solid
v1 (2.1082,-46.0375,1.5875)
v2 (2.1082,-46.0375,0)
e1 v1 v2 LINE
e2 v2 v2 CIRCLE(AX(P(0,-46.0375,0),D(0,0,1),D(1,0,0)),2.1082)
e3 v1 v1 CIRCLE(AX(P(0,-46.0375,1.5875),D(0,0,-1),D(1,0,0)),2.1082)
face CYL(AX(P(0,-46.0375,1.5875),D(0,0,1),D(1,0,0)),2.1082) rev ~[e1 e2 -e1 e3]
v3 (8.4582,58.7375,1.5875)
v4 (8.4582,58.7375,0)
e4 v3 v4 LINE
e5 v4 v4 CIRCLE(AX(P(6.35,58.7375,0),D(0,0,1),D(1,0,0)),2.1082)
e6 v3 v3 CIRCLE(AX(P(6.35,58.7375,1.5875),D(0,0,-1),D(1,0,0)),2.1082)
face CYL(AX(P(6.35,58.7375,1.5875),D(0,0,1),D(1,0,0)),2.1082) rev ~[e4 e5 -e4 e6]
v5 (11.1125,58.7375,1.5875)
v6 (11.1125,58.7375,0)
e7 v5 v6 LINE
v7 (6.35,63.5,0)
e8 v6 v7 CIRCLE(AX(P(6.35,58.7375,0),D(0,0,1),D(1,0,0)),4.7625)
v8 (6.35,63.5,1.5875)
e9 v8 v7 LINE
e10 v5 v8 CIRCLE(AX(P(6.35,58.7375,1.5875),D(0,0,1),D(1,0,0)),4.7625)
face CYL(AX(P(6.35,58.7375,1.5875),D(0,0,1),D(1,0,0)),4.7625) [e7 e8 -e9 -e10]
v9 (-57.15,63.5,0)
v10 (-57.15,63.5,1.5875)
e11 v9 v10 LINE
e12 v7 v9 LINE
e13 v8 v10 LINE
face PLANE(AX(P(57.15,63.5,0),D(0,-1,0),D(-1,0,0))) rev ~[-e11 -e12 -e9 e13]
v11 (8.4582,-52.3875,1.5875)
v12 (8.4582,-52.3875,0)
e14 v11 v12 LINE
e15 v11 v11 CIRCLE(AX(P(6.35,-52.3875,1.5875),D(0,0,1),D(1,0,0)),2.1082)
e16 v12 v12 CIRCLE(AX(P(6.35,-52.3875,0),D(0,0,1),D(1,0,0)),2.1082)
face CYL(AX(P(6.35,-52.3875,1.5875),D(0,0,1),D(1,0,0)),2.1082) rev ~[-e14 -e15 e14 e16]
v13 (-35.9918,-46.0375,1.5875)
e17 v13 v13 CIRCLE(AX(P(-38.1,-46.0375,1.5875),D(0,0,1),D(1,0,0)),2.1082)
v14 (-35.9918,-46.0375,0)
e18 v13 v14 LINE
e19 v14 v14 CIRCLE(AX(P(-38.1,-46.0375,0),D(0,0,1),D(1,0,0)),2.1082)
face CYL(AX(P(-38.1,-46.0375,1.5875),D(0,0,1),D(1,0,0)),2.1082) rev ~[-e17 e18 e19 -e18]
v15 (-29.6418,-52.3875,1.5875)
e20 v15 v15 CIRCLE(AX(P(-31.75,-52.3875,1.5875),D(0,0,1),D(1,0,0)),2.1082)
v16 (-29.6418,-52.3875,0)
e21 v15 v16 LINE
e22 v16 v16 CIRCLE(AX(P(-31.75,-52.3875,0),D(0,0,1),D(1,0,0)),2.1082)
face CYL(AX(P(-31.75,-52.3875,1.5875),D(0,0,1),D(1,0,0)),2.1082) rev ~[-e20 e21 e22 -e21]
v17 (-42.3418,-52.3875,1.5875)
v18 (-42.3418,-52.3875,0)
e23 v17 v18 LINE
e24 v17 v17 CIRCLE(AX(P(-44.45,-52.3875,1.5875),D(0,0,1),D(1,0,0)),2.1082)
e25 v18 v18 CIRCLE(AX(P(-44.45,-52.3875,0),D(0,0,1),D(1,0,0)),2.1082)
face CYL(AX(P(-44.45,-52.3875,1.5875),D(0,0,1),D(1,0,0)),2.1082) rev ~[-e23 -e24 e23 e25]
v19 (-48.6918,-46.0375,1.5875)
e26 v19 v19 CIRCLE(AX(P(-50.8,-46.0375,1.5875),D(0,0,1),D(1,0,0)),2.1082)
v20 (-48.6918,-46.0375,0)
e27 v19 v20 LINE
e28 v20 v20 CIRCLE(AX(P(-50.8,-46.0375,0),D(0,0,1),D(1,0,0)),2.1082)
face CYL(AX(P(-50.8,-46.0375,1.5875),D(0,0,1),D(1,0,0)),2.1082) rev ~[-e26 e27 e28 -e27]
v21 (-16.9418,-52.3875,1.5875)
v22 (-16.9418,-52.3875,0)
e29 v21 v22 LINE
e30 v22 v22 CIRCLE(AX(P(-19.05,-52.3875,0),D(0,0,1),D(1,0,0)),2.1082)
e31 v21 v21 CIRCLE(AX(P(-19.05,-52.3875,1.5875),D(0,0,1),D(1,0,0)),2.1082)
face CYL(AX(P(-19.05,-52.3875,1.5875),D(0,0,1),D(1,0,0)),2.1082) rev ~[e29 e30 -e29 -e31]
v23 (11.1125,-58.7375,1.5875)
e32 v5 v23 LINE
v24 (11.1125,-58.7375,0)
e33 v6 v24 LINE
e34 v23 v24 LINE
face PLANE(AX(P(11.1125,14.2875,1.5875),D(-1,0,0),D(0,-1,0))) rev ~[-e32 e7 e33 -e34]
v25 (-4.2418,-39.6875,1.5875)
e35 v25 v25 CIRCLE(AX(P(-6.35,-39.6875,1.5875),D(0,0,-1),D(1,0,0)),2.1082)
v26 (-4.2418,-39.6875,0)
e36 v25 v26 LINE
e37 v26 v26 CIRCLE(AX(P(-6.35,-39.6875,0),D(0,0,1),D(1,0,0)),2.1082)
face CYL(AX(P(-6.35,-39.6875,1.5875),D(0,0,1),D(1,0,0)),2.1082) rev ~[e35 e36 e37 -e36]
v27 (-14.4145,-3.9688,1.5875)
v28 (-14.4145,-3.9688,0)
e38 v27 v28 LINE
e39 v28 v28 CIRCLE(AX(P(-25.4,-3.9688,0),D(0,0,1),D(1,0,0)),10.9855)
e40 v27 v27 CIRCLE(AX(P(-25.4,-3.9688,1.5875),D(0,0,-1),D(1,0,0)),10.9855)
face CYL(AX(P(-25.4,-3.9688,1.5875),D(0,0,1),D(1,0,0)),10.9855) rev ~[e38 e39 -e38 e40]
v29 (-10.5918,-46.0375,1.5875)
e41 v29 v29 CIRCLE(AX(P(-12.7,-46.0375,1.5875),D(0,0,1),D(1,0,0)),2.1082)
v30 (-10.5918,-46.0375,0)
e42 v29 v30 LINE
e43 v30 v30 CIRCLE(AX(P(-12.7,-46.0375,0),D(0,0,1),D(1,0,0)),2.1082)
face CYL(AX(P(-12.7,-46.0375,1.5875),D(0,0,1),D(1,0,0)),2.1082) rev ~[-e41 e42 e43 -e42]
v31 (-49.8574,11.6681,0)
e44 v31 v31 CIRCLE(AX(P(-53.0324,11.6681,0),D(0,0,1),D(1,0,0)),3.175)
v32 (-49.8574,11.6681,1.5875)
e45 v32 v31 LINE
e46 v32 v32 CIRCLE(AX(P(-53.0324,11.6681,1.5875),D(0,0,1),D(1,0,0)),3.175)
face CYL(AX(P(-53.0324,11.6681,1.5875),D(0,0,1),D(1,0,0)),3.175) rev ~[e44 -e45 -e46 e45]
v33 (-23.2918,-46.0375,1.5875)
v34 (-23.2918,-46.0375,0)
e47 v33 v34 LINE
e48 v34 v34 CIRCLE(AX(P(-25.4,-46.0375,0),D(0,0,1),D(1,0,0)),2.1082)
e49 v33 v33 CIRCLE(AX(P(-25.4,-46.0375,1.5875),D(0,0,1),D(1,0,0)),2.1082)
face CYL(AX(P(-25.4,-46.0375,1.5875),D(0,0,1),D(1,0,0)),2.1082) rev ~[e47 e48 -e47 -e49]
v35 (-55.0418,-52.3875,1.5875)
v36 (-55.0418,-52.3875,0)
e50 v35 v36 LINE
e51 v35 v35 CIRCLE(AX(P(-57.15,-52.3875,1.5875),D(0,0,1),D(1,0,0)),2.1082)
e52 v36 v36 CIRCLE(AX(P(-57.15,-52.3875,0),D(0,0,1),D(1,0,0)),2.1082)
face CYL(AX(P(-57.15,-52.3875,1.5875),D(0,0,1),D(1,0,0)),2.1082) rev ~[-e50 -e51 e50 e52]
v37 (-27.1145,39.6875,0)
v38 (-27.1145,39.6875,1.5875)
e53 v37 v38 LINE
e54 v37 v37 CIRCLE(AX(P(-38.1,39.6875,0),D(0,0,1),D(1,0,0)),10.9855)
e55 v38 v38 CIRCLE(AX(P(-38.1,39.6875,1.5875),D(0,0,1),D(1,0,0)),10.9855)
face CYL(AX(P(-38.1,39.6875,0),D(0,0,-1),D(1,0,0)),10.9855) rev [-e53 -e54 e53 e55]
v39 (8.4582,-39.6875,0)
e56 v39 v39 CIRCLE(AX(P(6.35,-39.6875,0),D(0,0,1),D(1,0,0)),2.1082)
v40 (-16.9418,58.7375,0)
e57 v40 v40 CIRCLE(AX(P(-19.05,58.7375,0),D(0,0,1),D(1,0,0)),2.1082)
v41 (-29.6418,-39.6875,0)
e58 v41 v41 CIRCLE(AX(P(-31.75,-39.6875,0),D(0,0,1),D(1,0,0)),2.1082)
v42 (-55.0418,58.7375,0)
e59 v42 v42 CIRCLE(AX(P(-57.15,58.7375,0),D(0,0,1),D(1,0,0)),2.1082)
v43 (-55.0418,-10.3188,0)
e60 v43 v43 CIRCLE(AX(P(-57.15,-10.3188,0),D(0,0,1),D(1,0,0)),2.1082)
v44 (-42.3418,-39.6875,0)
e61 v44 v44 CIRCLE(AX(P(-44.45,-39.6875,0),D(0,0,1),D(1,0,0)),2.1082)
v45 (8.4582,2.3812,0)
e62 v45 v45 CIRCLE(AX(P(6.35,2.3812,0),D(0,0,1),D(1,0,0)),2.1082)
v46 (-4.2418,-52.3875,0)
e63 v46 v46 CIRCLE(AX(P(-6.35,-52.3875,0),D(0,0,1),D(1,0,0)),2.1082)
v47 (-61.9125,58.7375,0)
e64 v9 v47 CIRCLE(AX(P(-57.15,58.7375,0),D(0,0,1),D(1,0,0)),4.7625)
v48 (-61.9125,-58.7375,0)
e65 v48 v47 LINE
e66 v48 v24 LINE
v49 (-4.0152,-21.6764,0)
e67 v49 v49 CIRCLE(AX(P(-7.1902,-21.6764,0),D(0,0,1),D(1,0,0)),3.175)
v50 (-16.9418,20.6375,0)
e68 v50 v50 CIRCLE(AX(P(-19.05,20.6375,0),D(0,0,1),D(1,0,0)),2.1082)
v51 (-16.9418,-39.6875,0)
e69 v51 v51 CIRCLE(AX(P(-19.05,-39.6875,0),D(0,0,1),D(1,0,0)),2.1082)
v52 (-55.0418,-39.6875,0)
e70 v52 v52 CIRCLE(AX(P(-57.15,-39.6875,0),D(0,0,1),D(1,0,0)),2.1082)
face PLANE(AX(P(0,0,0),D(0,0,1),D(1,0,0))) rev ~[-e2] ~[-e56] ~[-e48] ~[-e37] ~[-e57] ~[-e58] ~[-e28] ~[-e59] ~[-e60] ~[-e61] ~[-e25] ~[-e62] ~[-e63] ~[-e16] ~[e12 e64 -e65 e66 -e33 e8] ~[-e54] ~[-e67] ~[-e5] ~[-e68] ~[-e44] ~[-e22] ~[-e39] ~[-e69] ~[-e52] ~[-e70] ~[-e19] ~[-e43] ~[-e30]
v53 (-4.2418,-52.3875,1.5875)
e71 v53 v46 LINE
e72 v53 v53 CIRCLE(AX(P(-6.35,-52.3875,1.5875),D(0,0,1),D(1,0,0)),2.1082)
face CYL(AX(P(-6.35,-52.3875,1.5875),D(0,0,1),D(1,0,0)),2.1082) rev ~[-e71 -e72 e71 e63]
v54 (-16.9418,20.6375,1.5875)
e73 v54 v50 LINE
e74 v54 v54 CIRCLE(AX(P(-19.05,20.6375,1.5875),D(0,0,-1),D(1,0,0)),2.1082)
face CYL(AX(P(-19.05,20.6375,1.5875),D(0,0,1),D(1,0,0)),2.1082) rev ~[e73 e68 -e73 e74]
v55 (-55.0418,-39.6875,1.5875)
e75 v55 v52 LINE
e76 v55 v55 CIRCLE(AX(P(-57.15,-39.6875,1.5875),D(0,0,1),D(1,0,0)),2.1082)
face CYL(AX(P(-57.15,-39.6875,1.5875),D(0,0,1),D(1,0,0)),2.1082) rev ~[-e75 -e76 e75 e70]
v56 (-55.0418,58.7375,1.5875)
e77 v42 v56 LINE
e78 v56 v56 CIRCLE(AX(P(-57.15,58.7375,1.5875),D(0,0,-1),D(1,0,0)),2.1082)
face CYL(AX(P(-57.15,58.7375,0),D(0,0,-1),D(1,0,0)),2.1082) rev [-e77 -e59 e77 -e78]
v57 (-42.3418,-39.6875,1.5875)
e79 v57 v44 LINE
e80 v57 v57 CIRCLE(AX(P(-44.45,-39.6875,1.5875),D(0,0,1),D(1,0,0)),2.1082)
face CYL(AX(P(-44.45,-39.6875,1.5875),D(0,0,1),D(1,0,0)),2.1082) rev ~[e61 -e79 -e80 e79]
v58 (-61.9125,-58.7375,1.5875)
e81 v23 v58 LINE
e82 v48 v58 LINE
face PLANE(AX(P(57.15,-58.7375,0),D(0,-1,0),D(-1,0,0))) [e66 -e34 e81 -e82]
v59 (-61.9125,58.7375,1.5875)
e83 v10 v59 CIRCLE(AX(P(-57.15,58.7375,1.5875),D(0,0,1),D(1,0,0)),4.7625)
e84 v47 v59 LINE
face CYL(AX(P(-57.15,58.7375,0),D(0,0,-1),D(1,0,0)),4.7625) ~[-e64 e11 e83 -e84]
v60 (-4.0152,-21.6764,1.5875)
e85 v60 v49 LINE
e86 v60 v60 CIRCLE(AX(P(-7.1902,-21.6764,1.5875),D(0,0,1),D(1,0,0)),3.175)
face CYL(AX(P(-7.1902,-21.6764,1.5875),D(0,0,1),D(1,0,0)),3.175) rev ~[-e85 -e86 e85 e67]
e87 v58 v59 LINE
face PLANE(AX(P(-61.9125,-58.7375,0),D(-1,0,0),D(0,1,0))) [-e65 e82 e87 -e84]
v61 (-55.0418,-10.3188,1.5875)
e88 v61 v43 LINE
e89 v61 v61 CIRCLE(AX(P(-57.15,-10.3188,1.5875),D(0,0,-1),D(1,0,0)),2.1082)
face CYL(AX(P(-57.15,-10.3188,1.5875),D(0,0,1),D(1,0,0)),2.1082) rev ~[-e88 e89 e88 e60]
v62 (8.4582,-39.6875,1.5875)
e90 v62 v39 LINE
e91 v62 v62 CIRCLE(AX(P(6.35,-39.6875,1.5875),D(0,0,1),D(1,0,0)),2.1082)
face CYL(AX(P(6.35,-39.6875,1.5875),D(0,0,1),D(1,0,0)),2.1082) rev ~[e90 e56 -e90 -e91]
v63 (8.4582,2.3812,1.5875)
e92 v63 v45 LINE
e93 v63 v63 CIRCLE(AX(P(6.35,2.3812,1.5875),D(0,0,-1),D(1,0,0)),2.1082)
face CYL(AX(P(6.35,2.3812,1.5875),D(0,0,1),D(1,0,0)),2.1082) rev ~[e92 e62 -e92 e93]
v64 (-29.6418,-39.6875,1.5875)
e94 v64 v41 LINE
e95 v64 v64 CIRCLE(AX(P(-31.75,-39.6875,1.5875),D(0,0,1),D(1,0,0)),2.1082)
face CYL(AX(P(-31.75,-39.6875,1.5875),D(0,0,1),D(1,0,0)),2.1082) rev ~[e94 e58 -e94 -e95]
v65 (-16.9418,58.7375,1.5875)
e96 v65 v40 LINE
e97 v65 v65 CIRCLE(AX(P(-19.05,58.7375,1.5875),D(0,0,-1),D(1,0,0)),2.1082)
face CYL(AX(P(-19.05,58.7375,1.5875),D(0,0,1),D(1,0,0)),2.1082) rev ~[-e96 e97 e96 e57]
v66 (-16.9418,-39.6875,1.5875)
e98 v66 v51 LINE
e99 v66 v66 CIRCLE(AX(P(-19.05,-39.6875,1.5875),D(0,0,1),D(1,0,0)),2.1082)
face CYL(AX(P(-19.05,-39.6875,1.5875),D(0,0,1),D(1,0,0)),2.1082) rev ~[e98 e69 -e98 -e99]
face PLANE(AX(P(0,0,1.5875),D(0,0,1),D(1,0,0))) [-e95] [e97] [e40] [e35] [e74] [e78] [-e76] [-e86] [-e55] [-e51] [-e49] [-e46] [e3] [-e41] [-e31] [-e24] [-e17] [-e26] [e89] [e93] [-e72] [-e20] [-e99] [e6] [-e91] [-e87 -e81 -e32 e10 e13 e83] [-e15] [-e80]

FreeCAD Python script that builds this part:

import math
import FreeCAD as App
import Part
import Sketcher

V = App.Vector
Q = App.Units.Quantity

doc = App.newDocument("Part")
params = doc.addObject("Spreadsheet::Sheet", "Params")
for row, (alias, value) in enumerate([
    ("sketch1_diameter", "0.166 in"),
    ("sketch1_diameter2", "0.865 in"),
    ("sketch1_width", "4.5 in"),
    ("sketch1_radius", "0.1875 in"),
    ("sketch1_height", "4.625 in"),
    ("pad1_length", "0.0625 in"),
    ("sketch2_diameter", "0.865 in"),
    ("sketch2_diameter2", "0.166 in"),
    ("pocket1_length", "0.0625 in"),
    ("sketch3_diameter", "0.25 in"),
    ("pocket2_length", "1 in"),
    ("sketch4_diameter", "0.166 in"),
    ("pocket3_length", "1 in"),
    ("sketch5_width", "2 in"),
    ("sketch5_diameter", "0.166 in"),
    ("sketch5_radius", "0.1875 in"),
    ("sketch5_height", "4.625 in"),
    ("pocket4_length", "1 in"),
    ("sketch6_diameter", "0.166 in"),
    ("pocket5_length", "1 in"),
    ("sketch7_diameter", "0.865 in"),
    ("pad2_length", "0.0625 in"),
    ("sketch8_diameter", "0.166 in"),
    ("pocket6_length", "0.0625 in"),
    ("sketch9_diameter", "0.166 in"),
    ("pocket7_length", "0.0625 in"),
    ("sketch10_diameter", "0.166 in"),
    ("pocket8_length", "0.0625 in"),
], start=1):
    params.set(f"A{row}", alias)
    params.set(f"B{row}", "=" + value)
    params.setAlias(f"B{row}", alias)

body = doc.addObject("PartDesign::Body", "Body")

sketch1 = body.newObject("Sketcher::SketchObject", "Sketch")
sketch1.AttachmentSupport = (doc.getObject("XY_Plane"), [""])
sketch1.MapMode = "FlatFace"
sketch1.addGeometry(Part.LineSegment(V(61.9125, -58.7375, 0), V(61.9125, 58.7375, 0)), False)
sketch1.addGeometry(Part.ArcOfCircle(Part.Circle(V(57.15, 58.7375, 0), V(0, 0, 1), 4.7625), math.radians(0), math.radians(90)), False)
sketch1.addGeometry(Part.LineSegment(V(57.15, 63.5, 0), V(-57.15, 63.5, 0)), False)
sketch1.addGeometry(Part.ArcOfCircle(Part.Circle(V(-57.15, 58.7375, 0), V(0, 0, 1), 4.7625), math.radians(90), math.radians(180)), False)
sketch1.addGeometry(Part.LineSegment(V(-61.9125, 58.7375, 0), V(-61.9125, -58.7375, 0)), False)
sketch1.addGeometry(Part.LineSegment(V(-61.9125, -58.7375, 0), V(61.9125, -58.7375, 0)), False)
sketch1.addGeometry(Part.Circle(V(57.15, 58.7375, 0), V(0, 0, 1), 2.1082), False)
sketch1.addGeometry(Part.Circle(V(-57.15, 58.7375, 0), V(0, 0, 1), 2.1082), False)
sketch1.addGeometry(Part.Circle(V(-38.1, 39.6875, 0), V(0, 0, 1), 10.9855), False)
sketch1.addConstraint(Sketcher.Constraint("Tangent", 0, 2, 1, 1))
sketch1.addConstraint(Sketcher.Constraint("Tangent", 1, 2, 2, 1))
sketch1.addConstraint(Sketcher.Constraint("Tangent", 2, 2, 3, 1))
sketch1.addConstraint(Sketcher.Constraint("Tangent", 3, 2, 4, 1))
sketch1.addConstraint(Sketcher.Constraint("Coincident", 4, 2, 5, 1))
sketch1.addConstraint(Sketcher.Constraint("Coincident", 5, 2, 0, 1))
sketch1.addConstraint(Sketcher.Constraint("Vertical", 0))
sketch1.addConstraint(Sketcher.Constraint("Horizontal", 2))
sketch1.addConstraint(Sketcher.Constraint("Vertical", 4))
sketch1.addConstraint(Sketcher.Constraint("Horizontal", 5))
sketch1.addConstraint(Sketcher.Constraint("Coincident", 6, 3, 1, 3))
sketch1.addConstraint(Sketcher.Constraint("Coincident", 7, 3, 3, 3))
sketch1.addConstraint(Sketcher.Constraint("Equal", 1, 3))
sketch1.addConstraint(Sketcher.Constraint("Equal", 6, 7))
sketch1.addConstraint(Sketcher.Constraint("Symmetric", 0, 2, 4, 2, -1, 1))
sketch1.addConstraint(Sketcher.Constraint("Diameter", 6, Q("0.166 in")))
sketch1.addConstraint(Sketcher.Constraint("Diameter", 8, Q("0.865 in")))
sketch1.addConstraint(Sketcher.Constraint("DistanceX", 2, 2, 2, 1, Q("4.5 in")))
sketch1.addConstraint(Sketcher.Constraint("Radius", 1, Q("0.1875 in")))
sketch1.addConstraint(Sketcher.Constraint("DistanceX", 8, 3, -1, 1, Q("1.5 in")))
sketch1.addConstraint(Sketcher.Constraint("DistanceY", 0, 1, 0, 2, Q("4.625 in")))
sketch1.addConstraint(Sketcher.Constraint("DistanceY", 8, 3, 3, 3, Q("0.75 in")))
sketch1.setExpression("Constraints[15]", "Params.sketch1_diameter")
sketch1.setExpression("Constraints[16]", "Params.sketch1_diameter2")
sketch1.setExpression("Constraints[17]", "Params.sketch1_width")
sketch1.setExpression("Constraints[18]", "Params.sketch1_radius")
sketch1.setExpression("Constraints[20]", "Params.sketch1_height")
pad1 = body.newObject("PartDesign::Pad", "Pad")
pad1.Profile = sketch1
pad1.setExpression("Length", "Params.pad1_length")

sketch2 = body.newObject("Sketcher::SketchObject", "Sketch001")
sketch2.AttachmentSupport = (doc.getObject("XY_Plane"), [""])
sketch2.MapMode = "FlatFace"
sketch2.AttachmentOffset = App.Placement(V(0, 0, 0.0625 * 25.4), App.Rotation())
sketch2.addGeometry(Part.Circle(V(-12.7, 39.6875, 0), V(0, 0, 1), 10.9855), False)
sketch2.addGeometry(Part.Circle(V(-25.4, -3.9688, 0), V(0, 0, 1), 10.9855), False)
sketch2.addGeometry(Part.Circle(V(38.1, 39.6875, 0), V(0, 0, 1), 10.9855), False)
sketch2.addGeometry(Part.Circle(V(0, -46.0375, 0), V(0, 0, 1), 2.1082), False)
sketch2.addConstraint(Sketcher.Constraint("Equal", 0, 1))
sketch2.addConstraint(Sketcher.Constraint("Equal", 1, 2))
sketch2.addConstraint(Sketcher.Constraint("PointOnObject", 3, 3, -2))
sketch2.addConstraint(Sketcher.Constraint("Horizontal", 0, 3, 2, 3))
sketch2.addConstraint(Sketcher.Constraint("Diameter", 0, Q("0.865 in")))
sketch2.addConstraint(Sketcher.Constraint("Diameter", 3, Q("0.166 in")))
sketch2.addConstraint(Sketcher.Constraint("DistanceX", 1, 3, -1, 1, Q("1 in")))
sketch2.addConstraint(Sketcher.Constraint("DistanceX", 0, 3, -1, 1, Q("0.5 in")))
sketch2.addConstraint(Sketcher.Constraint("DistanceX", -1, 1, 2, 3, Q("1.5 in")))
sketch2.addConstraint(Sketcher.Constraint("DistanceY", 1, 3, 0, 3, Q("1.718752 in")))
sketch2.addConstraint(Sketcher.Constraint("DistanceY", -1, 1, 0, 3, Q("1.5625 in")))
sketch2.addConstraint(Sketcher.Constraint("DistanceY", 3, 3, -1, 1, Q("1.8125 in")))
sketch2.setExpression("Constraints[4]", "Params.sketch2_diameter")
sketch2.setExpression("Constraints[5]", "Params.sketch2_diameter2")
pocket1 = body.newObject("PartDesign::Pocket", "Pocket")
pocket1.Profile = sketch2
pocket1.setExpression("Length", "Params.pocket1_length")

sketch3 = body.newObject("Sketcher::SketchObject", "Sketch002")
sketch3.AttachmentSupport = (doc.getObject("XY_Plane"), [""])
sketch3.MapMode = "FlatFace"
sketch3.AttachmentOffset = App.Placement(V(0, 0, 0.0625 * 25.4), App.Rotation())
sketch3.addGeometry(Part.Circle(V(-53.0324, 11.6681, 0), V(0, 0, 1), 3.175), False)
sketch3.addGeometry(Part.Circle(V(-7.1902, -21.6764, 0), V(0, 0, 1), 3.175), False)
sketch3.addConstraint(Sketcher.Constraint("Equal", 0, 1))
sketch3.addConstraint(Sketcher.Constraint("Diameter", 0, Q("0.25 in")))
sketch3.addConstraint(Sketcher.Constraint("DistanceX", 0, 3, -1, 1, Q("2.0879 in")))
sketch3.addConstraint(Sketcher.Constraint("DistanceY", 1, 3, -1, 1, Q("0.8534 in")))
sketch3.addConstraint(Sketcher.Constraint("DistanceX", 0, 3, 1, 3, Q("1.8048 in")))
sketch3.addConstraint(Sketcher.Constraint("DistanceY", -1, 1, 0, 3, Q("11.668 mm")))
sketch3.setExpression("Constraints[1]", "Params.sketch3_diameter")
pocket2 = body.newObject("PartDesign::Pocket", "Pocket001")
pocket2.Profile = sketch3
pocket2.setExpression("Length", "Params.pocket2_length")

sketch4 = body.newObject("Sketcher::SketchObject", "Sketch003")
sketch4.AttachmentSupport = (doc.getObject("XY_Plane"), [""])
sketch4.MapMode = "FlatFace"
sketch4.AttachmentOffset = App.Placement(V(0, 0, 0.0625 * 25.4), App.Rotation())
sketch4.addGeometry(Part.Circle(V(-6.35, -39.6875, 0), V(0, 0, 1), 2.1082), False)
sketch4.addGeometry(Part.Circle(V(6.35, -39.6875, 0), V(0, 0, 1), 2.1082), False)
sketch4.addGeometry(Part.Circle(V(19.05, -39.6875, 0), V(0, 0, 1), 2.1082), False)
sketch4.addGeometry(Part.Circle(V(31.75, -39.6875, 0), V(0, 0, 1), 2.1082), False)
sketch4.addGeometry(Part.Circle(V(44.45, -39.6875, 0), V(0, 0, 1), 2.1082), False)
sketch4.addGeometry(Part.Circle(V(57.15, -39.6875, 0), V(0, 0, 1), 2.1082), False)
sketch4.addGeometry(Part.Circle(V(-6.35, -52.3875, 0), V(0, 0, 1), 2.1082), False)
sketch4.addGeometry(Part.Circle(V(6.35, -52.3875, 0), V(0, 0, 1), 2.1082), False)
sketch4.addGeometry(Part.Circle(V(19.05, -52.3875, 0), V(0, 0, 1), 2.1082), False)
sketch4.addGeometry(Part.Circle(V(31.75, -52.3875, 0), V(0, 0, 1), 2.1082), False)
sketch4.addGeometry(Part.Circle(V(44.45, -52.3875, 0), V(0, 0, 1), 2.1082), False)
sketch4.addGeometry(Part.Circle(V(57.15, -52.3875, 0), V(0, 0, 1), 2.1082), False)
sketch4.addGeometry(Part.Circle(V(-19.05, -39.6875, 0), V(0, 0, 1), 2.1082), False)
sketch4.addGeometry(Part.Circle(V(-31.75, -39.6875, 0), V(0, 0, 1), 2.1082), False)
sketch4.addGeometry(Part.Circle(V(-44.45, -39.6875, 0), V(0, 0, 1), 2.1082), False)
sketch4.addGeometry(Part.Circle(V(-57.15, -39.6875, 0), V(0, 0, 1), 2.1082), False)
sketch4.addGeometry(Part.Circle(V(-19.05, -52.3875, 0), V(0, 0, 1), 2.1082), False)
sketch4.addGeometry(Part.Circle(V(-31.75, -52.3875, 0), V(0, 0, 1), 2.1082), False)
sketch4.addGeometry(Part.Circle(V(-44.45, -52.3875, 0), V(0, 0, 1), 2.1082), False)
sketch4.addGeometry(Part.Circle(V(-57.15, -52.3875, 0), V(0, 0, 1), 2.1082), False)
sketch4.addConstraint(Sketcher.Constraint("Equal", 0, 1))
sketch4.addConstraint(Sketcher.Constraint("Equal", 1, 2))
sketch4.addConstraint(Sketcher.Constraint("Equal", 2, 3))
sketch4.addConstraint(Sketcher.Constraint("Equal", 3, 4))
sketch4.addConstraint(Sketcher.Constraint("Equal", 4, 5))
sketch4.addConstraint(Sketcher.Constraint("Equal", 5, 6))
sketch4.addConstraint(Sketcher.Constraint("Equal", 6, 7))
sketch4.addConstraint(Sketcher.Constraint("Equal", 7, 8))
sketch4.addConstraint(Sketcher.Constraint("Equal", 8, 9))
sketch4.addConstraint(Sketcher.Constraint("Equal", 9, 10))
sketch4.addConstraint(Sketcher.Constraint("Equal", 10, 11))
sketch4.addConstraint(Sketcher.Constraint("Equal", 11, 12))
sketch4.addConstraint(Sketcher.Constraint("Equal", 12, 13))
sketch4.addConstraint(Sketcher.Constraint("Equal", 13, 14))
sketch4.addConstraint(Sketcher.Constraint("Equal", 14, 15))
sketch4.addConstraint(Sketcher.Constraint("Equal", 15, 16))
sketch4.addConstraint(Sketcher.Constraint("Equal", 16, 17))
sketch4.addConstraint(Sketcher.Constraint("Equal", 17, 18))
sketch4.addConstraint(Sketcher.Constraint("Equal", 18, 19))
sketch4.addConstraint(Sketcher.Constraint("Symmetric", 0, 3, 1, 3, -2))
sketch4.addConstraint(Sketcher.Constraint("Symmetric", 6, 3, 7, 3, -2))
sketch4.addConstraint(Sketcher.Constraint("Symmetric", 2, 3, 12, 3, -2))
sketch4.addConstraint(Sketcher.Constraint("Symmetric", 3, 3, 13, 3, -2))
sketch4.addConstraint(Sketcher.Constraint("Symmetric", 4, 3, 14, 3, -2))
sketch4.addConstraint(Sketcher.Constraint("Symmetric", 5, 3, 15, 3, -2))
sketch4.addConstraint(Sketcher.Constraint("Symmetric", 8, 3, 16, 3, -2))
sketch4.addConstraint(Sketcher.Constraint("Symmetric", 9, 3, 17, 3, -2))
sketch4.addConstraint(Sketcher.Constraint("Symmetric", 10, 3, 18, 3, -2))
sketch4.addConstraint(Sketcher.Constraint("Symmetric", 11, 3, 19, 3, -2))
sketch4.addConstraint(Sketcher.Constraint("Horizontal", 1, 3, 2, 3))
sketch4.addConstraint(Sketcher.Constraint("Horizontal", 2, 3, 3, 3))
sketch4.addConstraint(Sketcher.Constraint("Horizontal", 3, 3, 4, 3))
sketch4.addConstraint(Sketcher.Constraint("Horizontal", 4, 3, 5, 3))
sketch4.addConstraint(Sketcher.Constraint("Horizontal", 7, 3, 8, 3))
sketch4.addConstraint(Sketcher.Constraint("Horizontal", 8, 3, 9, 3))
sketch4.addConstraint(Sketcher.Constraint("Horizontal", 9, 3, 10, 3))
sketch4.addConstraint(Sketcher.Constraint("Horizontal", 10, 3, 11, 3))
sketch4.addConstraint(Sketcher.Constraint("Vertical", 0, 3, 6, 3))
sketch4.addConstraint(Sketcher.Constraint("Vertical", 2, 3, 8, 3))
sketch4.addConstraint(Sketcher.Constraint("Vertical", 3, 3, 9, 3))
sketch4.addConstraint(Sketcher.Constraint("Vertical", 4, 3, 10, 3))
sketch4.addConstraint(Sketcher.Constraint("Vertical", 5, 3, 11, 3))
sketch4.addConstraint(Sketcher.Constraint("Diameter", 0, Q("0.166 in")))
sketch4.addConstraint(Sketcher.Constraint("DistanceX", 0, 3, 1, 3, Q("0.5 in")))
sketch4.addConstraint(Sketcher.Constraint("DistanceX", 1, 3, 2, 3, Q("0.5 in")))
sketch4.addConstraint(Sketcher.Constraint("DistanceX", 2, 3, 3, 3, Q("0.5 in")))
sketch4.addConstraint(Sketcher.Constraint("DistanceX", 3, 3, 4, 3, Q("0.5 in")))
sketch4.addConstraint(Sketcher.Constraint("DistanceX", 4, 3, 5, 3, Q("0.5 in")))
sketch4.addConstraint(Sketcher.Constraint("DistanceY", 6, 3, 0, 3, Q("0.5 in")))
sketch4.addConstraint(Sketcher.Constraint("DistanceY", 0, 3, -1, 1, Q("1.5625 in")))
sketch4.setExpression("Constraints[42]", "Params.sketch4_diameter")
pocket3 = body.newObject("PartDesign::Pocket", "Pocket002")
pocket3.Profile = sketch4
pocket3.setExpression("Length", "Params.pocket3_length")

sketch5 = body.newObject("Sketcher::SketchObject", "Sketch004")
sketch5.AttachmentSupport = (doc.getObject("XY_Plane"), [""])
sketch5.MapMode = "FlatFace"
sketch5.AttachmentOffset = App.Placement(V(0, 0, 0.0625 * 25.4), App.Rotation())
sketch5.addGeometry(Part.LineSegment(V(61.9125, -58.7375, 0), V(61.9125, 58.7375, 0)), False)
sketch5.addGeometry(Part.ArcOfCircle(Part.Circle(V(57.15, 58.7375, 0), V(0, 0, 1), 4.7625), math.radians(0), math.radians(90)), False)
sketch5.addGeometry(Part.LineSegment(V(57.15, 63.5, 0), V(6.35, 63.5, 0)), False)
sketch5.addGeometry(Part.ArcOfCircle(Part.Circle(V(6.35, 58.7375, 0), V(0, 0, 1), 4.7625), math.radians(0), math.radians(90)), False)
sketch5.addGeometry(Part.LineSegment(V(11.1125, 58.7375, 0), V(11.1125, -58.7375, 0)), False)
sketch5.addGeometry(Part.LineSegment(V(11.1125, -58.7375, 0), V(61.9125, -58.7375, 0)), False)
sketch5.addGeometry(Part.Circle(V(6.35, 58.7375, 0), V(0, 0, 1), 2.1082), False)
sketch5.addConstraint(Sketcher.Constraint("Tangent", 0, 2, 1, 1))
sketch5.addConstraint(Sketcher.Constraint("Tangent", 1, 2, 2, 1))
sketch5.addConstraint(Sketcher.Constraint("Tangent", 2, 2, 3, 2))
sketch5.addConstraint(Sketcher.Constraint("Tangent", 3, 1, 4, 1))
sketch5.addConstraint(Sketcher.Constraint("Coincident", 4, 2, 5, 1))
sketch5.addConstraint(Sketcher.Constraint("Coincident", 5, 2, 0, 1))
sketch5.addConstraint(Sketcher.Constraint("Vertical", 0))
sketch5.addConstraint(Sketcher.Constraint("Horizontal", 2))
sketch5.addConstraint(Sketcher.Constraint("Vertical", 4))
sketch5.addConstraint(Sketcher.Constraint("Horizontal", 5))
sketch5.addConstraint(Sketcher.Constraint("Coincident", 6, 3, 3, 3))
sketch5.addConstraint(Sketcher.Constraint("Equal", 1, 3))
sketch5.addConstraint(Sketcher.Constraint("DistanceX", 2, 2, 2, 1, Q("2 in")))
sketch5.addConstraint(Sketcher.Constraint("Diameter", 6, Q("0.166 in")))
sketch5.addConstraint(Sketcher.Constraint("Radius", 1, Q("0.1875 in")))
sketch5.addConstraint(Sketcher.Constraint("DistanceX", -1, 1, 3, 3, Q("0.25 in")))
sketch5.addConstraint(Sketcher.Constraint("DistanceY", -1, 1, 1, 2, Q("2.5 in")))
sketch5.addConstraint(Sketcher.Constraint("DistanceY", 0, 1, 0, 2, Q("4.625 in")))
sketch5.setExpression("Constraints[12]", "Params.sketch5_width")
sketch5.setExpression("Constraints[13]", "Params.sketch5_diameter")
sketch5.setExpression("Constraints[14]", "Params.sketch5_radius")
sketch5.setExpression("Constraints[17]", "Params.sketch5_height")
pocket4 = body.newObject("PartDesign::Pocket", "Pocket003")
pocket4.Profile = sketch5
pocket4.setExpression("Length", "Params.pocket4_length")

sketch6 = body.newObject("Sketcher::SketchObject", "Sketch005")
sketch6.AttachmentSupport = (doc.getObject("XY_Plane"), [""])
sketch6.MapMode = "FlatFace"
sketch6.AttachmentOffset = App.Placement(V(0, 0, 0.0625 * 25.4), App.Rotation())
sketch6.addGeometry(Part.Circle(V(0, -46.0375, 0), V(0, 0, 1), 2.1082), False)
sketch6.addGeometry(Part.Circle(V(-12.7, -46.0375, 0), V(0, 0, 1), 2.1082), False)
sketch6.addGeometry(Part.Circle(V(-25.4, -46.0375, 0), V(0, 0, 1), 2.1082), False)
sketch6.addGeometry(Part.Circle(V(-38.1, -46.0375, 0), V(0, 0, 1), 2.1082), False)
sketch6.addGeometry(Part.Circle(V(-50.8, -46.0375, 0), V(0, 0, 1), 2.1082), False)
sketch6.addConstraint(Sketcher.Constraint("Equal", 0, 1))
sketch6.addConstraint(Sketcher.Constraint("Equal", 1, 2))
sketch6.addConstraint(Sketcher.Constraint("Equal", 2, 3))
sketch6.addConstraint(Sketcher.Constraint("Equal", 3, 4))
sketch6.addConstraint(Sketcher.Constraint("PointOnObject", 0, 3, -2))
sketch6.addConstraint(Sketcher.Constraint("Horizontal", 0, 3, 1, 3))
sketch6.addConstraint(Sketcher.Constraint("Horizontal", 1, 3, 2, 3))
sketch6.addConstraint(Sketcher.Constraint("Horizontal", 2, 3, 3, 3))
sketch6.addConstraint(Sketcher.Constraint("Horizontal", 3, 3, 4, 3))
sketch6.addConstraint(Sketcher.Constraint("DistanceX", 2, 3, -1, 1, Q("1 in")))
sketch6.addConstraint(Sketcher.Constraint("DistanceX", 3, 3, 1, 3, Q("1 in")))
sketch6.addConstraint(Sketcher.Constraint("DistanceX", 4, 3, 2, 3, Q("1 in")))
sketch6.addConstraint(Sketcher.Constraint("DistanceX", 1, 3, -1, 1, Q("0.5 in")))
sketch6.addConstraint(Sketcher.Constraint("Diameter", 0, Q("0.166 in")))
sketch6.addConstraint(Sketcher.Constraint("DistanceY", 0, 3, -1, 1, Q("1.8125 in")))
sketch6.setExpression("Constraints[13]", "Params.sketch6_diameter")
pocket5 = body.newObject("PartDesign::Pocket", "Pocket004")
pocket5.Profile = sketch6
pocket5.setExpression("Length", "Params.pocket5_length")

sketch7 = body.newObject("Sketcher::SketchObject", "Sketch006")
sketch7.AttachmentSupport = (doc.getObject("XY_Plane"), [""])
sketch7.MapMode = "FlatFace"
sketch7.AttachmentOffset = App.Placement(V(0, 0, 0.0625 * 25.4), App.Rotation())
sketch7.addGeometry(Part.Circle(V(-12.7, 39.6875, 0), V(0, 0, 1), 10.9855), False)
sketch7.addConstraint(Sketcher.Constraint("Diameter", 0, Q("0.865 in")))
sketch7.addConstraint(Sketcher.Constraint("DistanceX", 0, 3, -1, 1, Q("0.5 in")))
sketch7.addConstraint(Sketcher.Constraint("DistanceY", -1, 1, 0, 3, Q("1.5625 in")))
sketch7.setExpression("Constraints[0]", "Params.sketch7_diameter")
pad2 = body.newObject("PartDesign::Pad", "Pad001")
pad2.Profile = sketch7
pad2.setExpression("Length", "Params.pad2_length")
pad2.Reversed = True

sketch8 = body.newObject("Sketcher::SketchObject", "Sketch007")
sketch8.AttachmentSupport = (doc.getObject("XY_Plane"), [""])
sketch8.MapMode = "FlatFace"
sketch8.AttachmentOffset = App.Placement(V(0, 0, 0.0625 * 25.4), App.Rotation())
sketch8.addGeometry(Part.Circle(V(-57.15, -10.3188, 0), V(0, 0, 1), 2.1082), False)
sketch8.addConstraint(Sketcher.Constraint("Diameter", 0, Q("0.166 in")))
sketch8.addConstraint(Sketcher.Constraint("DistanceX", 0, 3, -1, 1, Q("2.25 in")))
sketch8.addConstraint(Sketcher.Constraint("DistanceY", 0, 3, -1, 1, Q("0.406252 in")))
sketch8.setExpression("Constraints[0]", "Params.sketch8_diameter")
pocket6 = body.newObject("PartDesign::Pocket", "Pocket005")
pocket6.Profile = sketch8
pocket6.setExpression("Length", "Params.pocket6_length")

sketch9 = body.newObject("Sketcher::SketchObject", "Sketch008")
sketch9.AttachmentSupport = (doc.getObject("XY_Plane"), [""])
sketch9.MapMode = "FlatFace"
sketch9.AttachmentOffset = App.Placement(V(0, 0, 0.0625 * 25.4), App.Rotation())
sketch9.addGeometry(Part.Circle(V(-19.05, 58.7375, 0), V(0, 0, 1), 2.1082), False)
sketch9.addGeometry(Part.Circle(V(-19.05, 20.6375, 0), V(0, 0, 1), 2.1082), False)
sketch9.addConstraint(Sketcher.Constraint("Equal", 0, 1))
sketch9.addConstraint(Sketcher.Constraint("Vertical", 0, 3, 1, 3))
sketch9.addConstraint(Sketcher.Constraint("Diameter", 0, Q("0.166 in")))
sketch9.addConstraint(Sketcher.Constraint("DistanceY", 1, 3, 0, 3, Q("1.5 in")))
sketch9.addConstraint(Sketcher.Constraint("DistanceX", 0, 3, -1, 1, Q("0.75 in")))
sketch9.addConstraint(Sketcher.Constraint("DistanceY", -1, 1, 0, 3, Q("2.3125 in")))
sketch9.setExpression("Constraints[2]", "Params.sketch9_diameter")
pocket7 = body.newObject("PartDesign::Pocket", "Pocket006")
pocket7.Profile = sketch9
pocket7.setExpression("Length", "Params.pocket7_length")

sketch10 = body.newObject("Sketcher::SketchObject", "Sketch009")
sketch10.AttachmentSupport = (doc.getObject("XY_Plane"), [""])
sketch10.MapMode = "FlatFace"
sketch10.AttachmentOffset = App.Placement(V(0, 0, 0.0625 * 25.4), App.Rotation())
sketch10.addGeometry(Part.Circle(V(6.35, 2.3812, 0), V(0, 0, 1), 2.1082), False)
sketch10.addConstraint(Sketcher.Constraint("Diameter", 0, Q("0.166 in")))
sketch10.addConstraint(Sketcher.Constraint("DistanceX", -1, 1, 0, 3, Q("0.25 in")))
sketch10.addConstraint(Sketcher.Constraint("DistanceY", -1, 1, 0, 3, Q("0.093748 in")))
sketch10.setExpression("Constraints[0]", "Params.sketch10_diameter")
pocket8 = body.newObject("PartDesign::Pocket", "Pocket007")
pocket8.Profile = sketch10
pocket8.setExpression("Length", "Params.pocket8_length")

doc.recompute()
